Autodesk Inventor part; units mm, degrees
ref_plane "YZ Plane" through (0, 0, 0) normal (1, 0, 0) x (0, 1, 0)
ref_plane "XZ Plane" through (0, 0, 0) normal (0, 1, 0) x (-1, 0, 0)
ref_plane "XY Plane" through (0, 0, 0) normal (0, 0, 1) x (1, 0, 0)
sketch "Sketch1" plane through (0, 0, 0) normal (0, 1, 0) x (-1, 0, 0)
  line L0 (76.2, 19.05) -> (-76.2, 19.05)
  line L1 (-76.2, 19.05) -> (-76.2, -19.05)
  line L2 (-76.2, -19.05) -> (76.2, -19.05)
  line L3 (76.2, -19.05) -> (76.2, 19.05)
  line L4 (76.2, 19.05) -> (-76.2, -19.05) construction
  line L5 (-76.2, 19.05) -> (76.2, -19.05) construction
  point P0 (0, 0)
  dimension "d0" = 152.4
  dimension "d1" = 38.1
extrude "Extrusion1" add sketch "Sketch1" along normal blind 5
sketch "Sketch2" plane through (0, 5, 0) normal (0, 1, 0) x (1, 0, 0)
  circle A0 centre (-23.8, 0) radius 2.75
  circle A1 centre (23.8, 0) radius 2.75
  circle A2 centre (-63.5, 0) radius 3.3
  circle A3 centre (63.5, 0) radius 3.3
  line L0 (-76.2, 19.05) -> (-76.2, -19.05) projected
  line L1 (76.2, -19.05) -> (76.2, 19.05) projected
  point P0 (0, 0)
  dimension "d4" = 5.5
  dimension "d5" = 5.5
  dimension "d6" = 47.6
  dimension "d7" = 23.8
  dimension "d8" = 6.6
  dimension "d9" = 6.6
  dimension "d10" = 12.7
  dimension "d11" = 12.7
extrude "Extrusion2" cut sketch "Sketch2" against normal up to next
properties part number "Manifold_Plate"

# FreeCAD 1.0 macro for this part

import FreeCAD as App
import Part
import Sketcher
from FreeCAD import Vector
Q = App.Units.Quantity

doc = App.newDocument("Part")
body = doc.addObject("PartDesign::Body", "Body")

sketch1 = body.newObject("Sketcher::SketchObject", "Sketch")
sketch1.AttachmentSupport = (doc.getObject("XZ_Plane"), [""])
sketch1.MapMode = "FlatFace"
sketch1.addGeometry(Part.LineSegment(Vector(-76, -19, 0), Vector(-76, 19, 0)), False)
sketch1.addGeometry(Part.LineSegment(Vector(-76, 19, 0), Vector(76, 19, 0)), False)
sketch1.addGeometry(Part.LineSegment(Vector(76, 19, 0), Vector(76, -19, 0)), False)
sketch1.addGeometry(Part.LineSegment(Vector(76, -19, 0), Vector(-76, -19, 0)), False)
sketch1.addConstraint(Sketcher.Constraint("Coincident", 0, 2, 1, 1))
sketch1.addConstraint(Sketcher.Constraint("Coincident", 1, 2, 2, 1))
sketch1.addConstraint(Sketcher.Constraint("Coincident", 2, 2, 3, 1))
sketch1.addConstraint(Sketcher.Constraint("Coincident", 3, 2, 0, 1))
sketch1.addConstraint(Sketcher.Constraint("Vertical", 0))
sketch1.addConstraint(Sketcher.Constraint("Horizontal", 1))
sketch1.addConstraint(Sketcher.Constraint("Vertical", 2))
sketch1.addConstraint(Sketcher.Constraint("Horizontal", 3))
sketch1.addConstraint(Sketcher.Constraint("Symmetric", 0, 2, 2, 2, -1, 1))
sketch1.addConstraint(Sketcher.Constraint("DistanceX", 1, 1, 1, 2, Q("152.4 mm")))
sketch1.addConstraint(Sketcher.Constraint("DistanceY", 0, 1, 0, 2, Q("38.1 mm")))
pad1 = body.newObject("PartDesign::Pad", "Pad")
pad1.Profile = sketch1
pad1.Length = 5
pad1.Reversed = True

sketch2 = body.newObject("Sketcher::SketchObject", "Sketch001")
sketch2.AttachmentSupport = (doc.getObject("XZ_Plane"), [""])
sketch2.MapMode = "FlatFace"
sketch2.AttachmentOffset = App.Placement(Vector(0, 0, -5), App.Rotation())
sketch2.addGeometry(Part.Circle(Vector(-23.8, 0, 0), Vector(0, 0, 1), 2.8), False)
sketch2.addGeometry(Part.Circle(Vector(23.8, 0, 0), Vector(0, 0, 1), 2.8), False)
sketch2.addGeometry(Part.Circle(Vector(-63.5, 0, 0), Vector(0, 0, 1), 3.3), False)
sketch2.addGeometry(Part.Circle(Vector(63.5, 0, 0), Vector(0, 0, 1), 3.3), False)
sketch2.addConstraint(Sketcher.Constraint("Equal", 0, 1))
sketch2.addConstraint(Sketcher.Constraint("Equal", 2, 3))
sketch2.addConstraint(Sketcher.Constraint("Symmetric", 0, 3, 1, 3, -1, 1))
sketch2.addConstraint(Sketcher.Constraint("Symmetric", 2, 3, 3, 3, -1, 1))
sketch2.addConstraint(Sketcher.Constraint("PointOnObject", 0, 3, -1))
sketch2.addConstraint(Sketcher.Constraint("PointOnObject", 2, 3, -1))
sketch2.addConstraint(Sketcher.Constraint("Diameter", 0, Q("5.5 mm")))
sketch2.addConstraint(Sketcher.Constraint("Diameter", 2, Q("6.6 mm")))
sketch2.addConstraint(Sketcher.Constraint("DistanceX", 0, 3, -1, 1, Q("23.8 mm")))
sketch2.addConstraint(Sketcher.Constraint("DistanceX", 2, 3, 3, 3, Q("127 mm")))
pocket1 = body.newObject("PartDesign::Pocket", "Pocket")
pocket1.Profile = sketch2
pocket1.Length = 5
pocket1.Reversed = True

doc.recompute()
